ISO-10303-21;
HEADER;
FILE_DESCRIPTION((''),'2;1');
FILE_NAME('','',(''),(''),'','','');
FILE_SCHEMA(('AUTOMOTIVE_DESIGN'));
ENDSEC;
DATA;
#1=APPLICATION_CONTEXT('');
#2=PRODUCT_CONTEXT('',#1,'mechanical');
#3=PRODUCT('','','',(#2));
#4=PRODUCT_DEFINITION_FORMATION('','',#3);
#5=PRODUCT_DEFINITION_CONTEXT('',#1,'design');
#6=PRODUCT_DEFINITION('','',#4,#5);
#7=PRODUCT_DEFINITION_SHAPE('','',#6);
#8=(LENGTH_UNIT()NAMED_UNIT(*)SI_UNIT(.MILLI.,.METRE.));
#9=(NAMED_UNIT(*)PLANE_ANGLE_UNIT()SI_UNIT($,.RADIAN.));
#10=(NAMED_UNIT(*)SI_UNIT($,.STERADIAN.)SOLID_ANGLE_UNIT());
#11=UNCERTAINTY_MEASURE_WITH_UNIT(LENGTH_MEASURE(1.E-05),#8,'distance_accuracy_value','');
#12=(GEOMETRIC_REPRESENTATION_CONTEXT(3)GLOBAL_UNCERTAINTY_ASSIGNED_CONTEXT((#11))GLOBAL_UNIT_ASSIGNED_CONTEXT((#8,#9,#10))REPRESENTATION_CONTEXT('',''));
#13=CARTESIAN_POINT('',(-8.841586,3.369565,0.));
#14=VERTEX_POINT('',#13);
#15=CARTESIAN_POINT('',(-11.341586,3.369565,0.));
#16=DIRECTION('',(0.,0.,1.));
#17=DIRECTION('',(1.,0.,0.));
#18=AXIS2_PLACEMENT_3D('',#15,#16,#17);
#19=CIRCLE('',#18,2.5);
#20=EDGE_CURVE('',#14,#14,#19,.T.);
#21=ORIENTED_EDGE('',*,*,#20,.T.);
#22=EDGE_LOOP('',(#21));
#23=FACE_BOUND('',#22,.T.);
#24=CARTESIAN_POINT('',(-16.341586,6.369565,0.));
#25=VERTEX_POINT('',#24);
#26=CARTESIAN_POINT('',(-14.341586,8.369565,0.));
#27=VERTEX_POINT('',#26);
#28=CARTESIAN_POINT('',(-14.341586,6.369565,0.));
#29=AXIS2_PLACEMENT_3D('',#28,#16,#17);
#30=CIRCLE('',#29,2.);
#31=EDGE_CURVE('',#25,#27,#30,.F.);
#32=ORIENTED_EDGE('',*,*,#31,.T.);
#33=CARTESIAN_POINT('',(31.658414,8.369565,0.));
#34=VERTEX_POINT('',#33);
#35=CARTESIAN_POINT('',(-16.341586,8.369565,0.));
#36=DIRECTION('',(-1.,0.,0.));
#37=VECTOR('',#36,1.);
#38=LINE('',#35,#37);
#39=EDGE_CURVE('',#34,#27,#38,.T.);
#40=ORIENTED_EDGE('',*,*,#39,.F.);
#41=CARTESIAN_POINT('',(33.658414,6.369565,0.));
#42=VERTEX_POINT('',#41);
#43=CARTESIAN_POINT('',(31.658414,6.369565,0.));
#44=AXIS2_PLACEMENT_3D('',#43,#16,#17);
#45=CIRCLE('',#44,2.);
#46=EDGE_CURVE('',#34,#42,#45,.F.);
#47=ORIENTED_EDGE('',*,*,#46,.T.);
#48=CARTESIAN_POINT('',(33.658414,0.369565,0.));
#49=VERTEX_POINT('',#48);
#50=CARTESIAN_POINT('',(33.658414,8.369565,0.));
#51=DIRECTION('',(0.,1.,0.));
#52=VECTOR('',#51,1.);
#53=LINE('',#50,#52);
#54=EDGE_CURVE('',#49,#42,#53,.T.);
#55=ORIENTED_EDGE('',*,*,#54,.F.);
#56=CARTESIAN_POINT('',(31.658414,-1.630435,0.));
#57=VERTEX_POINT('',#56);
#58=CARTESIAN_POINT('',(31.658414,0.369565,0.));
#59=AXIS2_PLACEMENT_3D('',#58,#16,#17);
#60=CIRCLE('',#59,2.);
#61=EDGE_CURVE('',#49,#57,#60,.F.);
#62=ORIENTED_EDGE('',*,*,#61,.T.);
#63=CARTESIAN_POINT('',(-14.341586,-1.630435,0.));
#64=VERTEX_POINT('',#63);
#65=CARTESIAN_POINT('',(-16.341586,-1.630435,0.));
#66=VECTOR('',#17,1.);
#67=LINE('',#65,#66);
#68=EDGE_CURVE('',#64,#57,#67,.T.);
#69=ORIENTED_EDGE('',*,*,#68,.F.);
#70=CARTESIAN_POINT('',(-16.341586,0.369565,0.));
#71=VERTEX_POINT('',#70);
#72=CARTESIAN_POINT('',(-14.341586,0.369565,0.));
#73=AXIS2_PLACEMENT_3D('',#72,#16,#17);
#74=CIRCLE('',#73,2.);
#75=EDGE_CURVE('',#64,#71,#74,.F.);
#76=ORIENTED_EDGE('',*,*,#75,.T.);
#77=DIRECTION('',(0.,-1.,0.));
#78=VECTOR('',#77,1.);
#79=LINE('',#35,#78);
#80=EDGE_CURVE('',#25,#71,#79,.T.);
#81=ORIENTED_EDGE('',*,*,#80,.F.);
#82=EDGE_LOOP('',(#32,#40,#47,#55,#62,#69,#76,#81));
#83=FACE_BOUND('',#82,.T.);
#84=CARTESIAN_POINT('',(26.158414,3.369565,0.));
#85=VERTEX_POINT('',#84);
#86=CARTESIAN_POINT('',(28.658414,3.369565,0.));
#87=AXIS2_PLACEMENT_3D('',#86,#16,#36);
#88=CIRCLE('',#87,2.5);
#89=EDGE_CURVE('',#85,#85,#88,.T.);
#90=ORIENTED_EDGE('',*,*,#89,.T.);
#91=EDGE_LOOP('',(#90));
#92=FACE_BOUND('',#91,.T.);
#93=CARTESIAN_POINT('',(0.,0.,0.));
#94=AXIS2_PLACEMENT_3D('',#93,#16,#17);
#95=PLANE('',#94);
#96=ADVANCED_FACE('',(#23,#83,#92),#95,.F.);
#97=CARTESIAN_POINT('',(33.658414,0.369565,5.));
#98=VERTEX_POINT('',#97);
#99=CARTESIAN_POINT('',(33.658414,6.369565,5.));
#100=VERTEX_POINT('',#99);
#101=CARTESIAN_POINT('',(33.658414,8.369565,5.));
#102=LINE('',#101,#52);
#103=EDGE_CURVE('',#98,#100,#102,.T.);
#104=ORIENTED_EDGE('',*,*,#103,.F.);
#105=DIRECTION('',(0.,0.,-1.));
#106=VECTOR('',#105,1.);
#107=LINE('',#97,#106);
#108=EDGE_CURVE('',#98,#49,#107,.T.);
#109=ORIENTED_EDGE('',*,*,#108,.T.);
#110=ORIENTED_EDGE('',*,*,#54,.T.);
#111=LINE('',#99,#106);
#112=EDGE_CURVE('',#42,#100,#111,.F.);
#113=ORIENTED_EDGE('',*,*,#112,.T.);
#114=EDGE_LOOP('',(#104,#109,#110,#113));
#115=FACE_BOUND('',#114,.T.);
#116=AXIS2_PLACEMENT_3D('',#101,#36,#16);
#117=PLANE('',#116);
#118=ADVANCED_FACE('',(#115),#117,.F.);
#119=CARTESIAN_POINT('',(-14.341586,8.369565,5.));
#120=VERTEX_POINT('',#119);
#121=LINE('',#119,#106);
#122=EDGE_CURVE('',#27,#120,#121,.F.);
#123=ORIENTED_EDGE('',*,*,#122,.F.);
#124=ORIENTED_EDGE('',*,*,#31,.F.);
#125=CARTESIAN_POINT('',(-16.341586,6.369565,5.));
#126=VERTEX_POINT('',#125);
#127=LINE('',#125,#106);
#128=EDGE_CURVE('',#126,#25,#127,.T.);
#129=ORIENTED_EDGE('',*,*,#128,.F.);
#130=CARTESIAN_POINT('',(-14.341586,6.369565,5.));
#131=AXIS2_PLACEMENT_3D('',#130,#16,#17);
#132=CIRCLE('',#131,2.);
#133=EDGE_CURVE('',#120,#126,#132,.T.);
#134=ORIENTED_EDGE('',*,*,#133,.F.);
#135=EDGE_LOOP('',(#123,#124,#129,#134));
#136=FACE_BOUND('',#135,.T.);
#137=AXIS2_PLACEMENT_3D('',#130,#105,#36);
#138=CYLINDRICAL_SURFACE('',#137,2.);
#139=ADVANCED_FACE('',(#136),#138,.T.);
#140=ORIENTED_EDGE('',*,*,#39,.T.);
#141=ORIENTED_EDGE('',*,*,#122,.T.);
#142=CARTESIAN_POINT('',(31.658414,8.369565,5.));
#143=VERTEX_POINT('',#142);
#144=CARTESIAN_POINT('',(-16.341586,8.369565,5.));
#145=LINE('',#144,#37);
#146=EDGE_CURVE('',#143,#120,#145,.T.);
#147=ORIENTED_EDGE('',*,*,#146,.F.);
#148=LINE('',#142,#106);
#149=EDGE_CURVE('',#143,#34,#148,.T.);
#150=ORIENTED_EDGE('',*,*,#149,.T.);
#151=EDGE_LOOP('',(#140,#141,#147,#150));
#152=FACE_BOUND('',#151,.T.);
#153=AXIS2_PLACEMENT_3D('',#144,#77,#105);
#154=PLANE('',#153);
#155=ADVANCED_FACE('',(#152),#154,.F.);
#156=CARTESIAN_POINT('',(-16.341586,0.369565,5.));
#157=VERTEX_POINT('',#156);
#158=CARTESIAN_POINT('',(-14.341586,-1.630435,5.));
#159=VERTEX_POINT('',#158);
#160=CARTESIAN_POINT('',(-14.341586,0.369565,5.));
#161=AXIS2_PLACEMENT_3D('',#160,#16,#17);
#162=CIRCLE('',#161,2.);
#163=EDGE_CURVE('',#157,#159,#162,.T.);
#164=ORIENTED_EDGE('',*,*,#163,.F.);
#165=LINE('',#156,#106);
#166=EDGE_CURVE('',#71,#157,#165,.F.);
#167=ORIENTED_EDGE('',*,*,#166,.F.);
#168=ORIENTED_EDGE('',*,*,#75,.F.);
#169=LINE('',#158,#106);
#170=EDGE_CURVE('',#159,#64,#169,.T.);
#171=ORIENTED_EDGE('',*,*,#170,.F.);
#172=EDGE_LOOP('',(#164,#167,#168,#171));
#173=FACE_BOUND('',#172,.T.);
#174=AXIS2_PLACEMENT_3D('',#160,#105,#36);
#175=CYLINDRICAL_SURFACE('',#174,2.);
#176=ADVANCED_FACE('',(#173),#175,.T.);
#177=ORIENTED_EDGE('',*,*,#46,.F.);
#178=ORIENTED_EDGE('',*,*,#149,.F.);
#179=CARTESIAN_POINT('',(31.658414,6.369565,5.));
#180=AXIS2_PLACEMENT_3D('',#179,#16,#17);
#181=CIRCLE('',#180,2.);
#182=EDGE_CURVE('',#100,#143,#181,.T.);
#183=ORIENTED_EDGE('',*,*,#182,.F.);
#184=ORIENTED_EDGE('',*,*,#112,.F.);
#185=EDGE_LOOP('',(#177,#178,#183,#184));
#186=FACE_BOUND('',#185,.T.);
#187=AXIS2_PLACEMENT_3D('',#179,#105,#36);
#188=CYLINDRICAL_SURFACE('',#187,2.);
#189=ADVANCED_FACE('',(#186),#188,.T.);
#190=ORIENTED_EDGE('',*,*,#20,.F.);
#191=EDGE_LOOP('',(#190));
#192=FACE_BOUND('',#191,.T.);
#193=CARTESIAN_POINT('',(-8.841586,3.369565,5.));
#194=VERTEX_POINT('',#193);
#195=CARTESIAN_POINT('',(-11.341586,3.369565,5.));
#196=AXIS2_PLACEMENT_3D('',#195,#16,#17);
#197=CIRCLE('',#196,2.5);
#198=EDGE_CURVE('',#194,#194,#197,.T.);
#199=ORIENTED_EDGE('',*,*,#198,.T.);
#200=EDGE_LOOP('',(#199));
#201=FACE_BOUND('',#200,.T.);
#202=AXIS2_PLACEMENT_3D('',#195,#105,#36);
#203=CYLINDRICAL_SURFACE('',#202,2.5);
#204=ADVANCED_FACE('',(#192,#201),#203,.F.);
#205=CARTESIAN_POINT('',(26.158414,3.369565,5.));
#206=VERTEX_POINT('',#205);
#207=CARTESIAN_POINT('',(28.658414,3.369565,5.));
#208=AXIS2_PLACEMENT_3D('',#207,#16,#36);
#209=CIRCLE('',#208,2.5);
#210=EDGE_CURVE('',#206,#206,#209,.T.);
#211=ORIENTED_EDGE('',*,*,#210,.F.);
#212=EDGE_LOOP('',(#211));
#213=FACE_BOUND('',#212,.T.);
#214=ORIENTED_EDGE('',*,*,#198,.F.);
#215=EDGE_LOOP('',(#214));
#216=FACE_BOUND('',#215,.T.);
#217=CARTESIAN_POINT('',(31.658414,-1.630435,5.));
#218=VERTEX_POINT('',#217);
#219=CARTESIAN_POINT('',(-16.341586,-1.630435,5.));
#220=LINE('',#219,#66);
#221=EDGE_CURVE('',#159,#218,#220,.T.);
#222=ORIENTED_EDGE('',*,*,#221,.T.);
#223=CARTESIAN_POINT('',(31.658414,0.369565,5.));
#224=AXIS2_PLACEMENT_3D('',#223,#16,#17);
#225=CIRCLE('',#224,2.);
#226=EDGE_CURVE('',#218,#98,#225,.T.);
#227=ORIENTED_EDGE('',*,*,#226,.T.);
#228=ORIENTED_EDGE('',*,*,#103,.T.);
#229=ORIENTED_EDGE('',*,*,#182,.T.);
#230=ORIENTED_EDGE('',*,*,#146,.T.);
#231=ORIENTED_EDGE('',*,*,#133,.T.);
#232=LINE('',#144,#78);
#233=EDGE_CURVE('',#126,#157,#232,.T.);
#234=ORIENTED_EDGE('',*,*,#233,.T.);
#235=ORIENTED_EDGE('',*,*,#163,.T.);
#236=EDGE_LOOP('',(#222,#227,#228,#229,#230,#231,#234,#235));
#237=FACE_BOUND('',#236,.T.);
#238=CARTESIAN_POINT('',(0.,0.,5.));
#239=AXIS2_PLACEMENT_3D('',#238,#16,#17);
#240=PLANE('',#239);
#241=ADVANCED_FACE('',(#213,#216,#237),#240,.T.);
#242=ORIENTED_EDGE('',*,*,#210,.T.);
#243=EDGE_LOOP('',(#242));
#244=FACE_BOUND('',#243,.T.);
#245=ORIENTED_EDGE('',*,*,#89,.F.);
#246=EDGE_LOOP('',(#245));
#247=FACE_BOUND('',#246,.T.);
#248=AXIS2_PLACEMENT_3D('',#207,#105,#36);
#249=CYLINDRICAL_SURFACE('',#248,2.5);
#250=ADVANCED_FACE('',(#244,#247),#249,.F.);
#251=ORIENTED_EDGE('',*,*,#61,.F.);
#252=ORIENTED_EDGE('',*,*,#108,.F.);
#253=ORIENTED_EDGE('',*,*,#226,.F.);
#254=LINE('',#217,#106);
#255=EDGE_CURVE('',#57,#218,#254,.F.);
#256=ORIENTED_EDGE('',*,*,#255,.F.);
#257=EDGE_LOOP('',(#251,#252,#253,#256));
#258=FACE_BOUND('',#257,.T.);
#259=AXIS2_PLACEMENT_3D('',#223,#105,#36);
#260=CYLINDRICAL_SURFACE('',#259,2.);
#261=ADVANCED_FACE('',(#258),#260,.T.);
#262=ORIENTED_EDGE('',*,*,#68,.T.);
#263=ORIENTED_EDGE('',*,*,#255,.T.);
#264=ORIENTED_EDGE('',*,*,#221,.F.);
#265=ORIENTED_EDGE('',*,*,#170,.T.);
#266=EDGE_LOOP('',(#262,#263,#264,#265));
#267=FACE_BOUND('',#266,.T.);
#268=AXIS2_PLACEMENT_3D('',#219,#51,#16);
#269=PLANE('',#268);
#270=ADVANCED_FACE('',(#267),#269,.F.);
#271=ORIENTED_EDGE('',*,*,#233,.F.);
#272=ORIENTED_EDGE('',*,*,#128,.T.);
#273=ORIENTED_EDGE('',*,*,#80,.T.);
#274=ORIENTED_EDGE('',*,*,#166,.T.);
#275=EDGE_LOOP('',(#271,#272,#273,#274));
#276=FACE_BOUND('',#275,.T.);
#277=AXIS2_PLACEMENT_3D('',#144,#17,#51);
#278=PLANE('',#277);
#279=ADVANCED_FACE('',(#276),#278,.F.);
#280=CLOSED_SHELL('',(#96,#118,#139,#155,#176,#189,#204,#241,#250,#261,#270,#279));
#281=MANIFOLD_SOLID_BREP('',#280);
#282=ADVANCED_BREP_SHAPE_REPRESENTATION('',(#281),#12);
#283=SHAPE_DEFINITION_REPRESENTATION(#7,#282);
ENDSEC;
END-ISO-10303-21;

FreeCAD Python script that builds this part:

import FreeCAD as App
import Part
import Sketcher
from FreeCAD import Vector


def edges_at(feature, points):
    """Names of the edges that pass closest to the given points."""
    edges = feature.Shape.Edges
    near = lambda p: min(range(len(edges)), key=lambda i: edges[i].distToShape(Part.Vertex(*p))[0])
    return sorted({f"Edge{near(p) + 1}" for p in points})

doc = App.newDocument("Part")
body = doc.addObject("PartDesign::Body", "Body")

# Sketch on XY plane
sketch1 = body.newObject("Sketcher::SketchObject", "Sketch")
sketch1.AttachmentSupport = (doc.getObject("XY_Plane"), [""])
sketch1.MapMode = "FlatFace"
sketch1.addGeometry(Part.LineSegment(Vector(-16.341586, 8.369565, 0), Vector(-16.341586, -1.630435, 0)), False)
sketch1.addGeometry(Part.LineSegment(Vector(-16.341586, -1.630435, 0), Vector(33.658414, -1.630435, 0)), False)
sketch1.addGeometry(Part.LineSegment(Vector(33.658414, -1.630435, 0), Vector(33.658414, 8.369565, 0)), False)
sketch1.addGeometry(Part.LineSegment(Vector(33.658414, 8.369565, 0), Vector(-16.341586, 8.369565, 0)), False)
sketch1.addGeometry(Part.Circle(Vector(-11.341586, 3.369565, 0), Vector(0, 0, 1), 2.5), False)
sketch1.addGeometry(Part.Circle(Vector(28.658414, 3.369565, 0), Vector(0, 0, 1), 2.5), False)
sketch1.addConstraint(Sketcher.Constraint("Coincident", 0, 2, 1, 1))
sketch1.addConstraint(Sketcher.Constraint("Coincident", 1, 2, 2, 1))
sketch1.addConstraint(Sketcher.Constraint("Coincident", 2, 2, 3, 1))
sketch1.addConstraint(Sketcher.Constraint("Coincident", 3, 2, 0, 1))
sketch1.addConstraint(Sketcher.Constraint("Vertical", 0))
sketch1.addConstraint(Sketcher.Constraint("Horizontal", 1))
sketch1.addConstraint(Sketcher.Constraint("Vertical", 2))
sketch1.addConstraint(Sketcher.Constraint("Horizontal", 3))
sketch1.addConstraint(Sketcher.Constraint("Equal", 4, 5))
sketch1.addConstraint(Sketcher.Constraint("Horizontal", 4, 3, 5, 3))
sketch1.addConstraint(Sketcher.Constraint("Diameter", 4, 5.0))
sketch1.addConstraint(Sketcher.Constraint("DistanceX", 1, 1, 1, 2, 50.0))
sketch1.addConstraint(Sketcher.Constraint("DistanceY", 0, 2, 0, 1, 10.0))
sketch1.addConstraint(Sketcher.Constraint("DistanceX", 4, 3, 5, 3, 40.0))
sketch1.addConstraint(Sketcher.Constraint("DistanceX", 0, 2, 4, 3, 5.0))
sketch1.addConstraint(Sketcher.Constraint("DistanceY", 0, 2, 4, 3, 5.0))
sketch1.addConstraint(Sketcher.Constraint("DistanceX", 4, 3, -1, 1, 11.341586))
sketch1.addConstraint(Sketcher.Constraint("DistanceY", -1, 1, 4, 3, 3.369565))
pad1 = body.newObject("PartDesign::Pad", "Pad")
pad1.Profile = sketch1
pad1.Length = 5
doc.recompute()

fillet = body.newObject("PartDesign::Fillet", "Fillet")
fillet.Base = (pad1, edges_at(pad1, [(-16.342, 8.37, 2.5)]))
fillet.Radius = 2
doc.recompute()

fillet2 = body.newObject("PartDesign::Fillet", "Fillet001")
fillet2.Base = (fillet, edges_at(fillet, [(-16.342, -1.63, 2.5)]))
fillet2.Radius = 2
doc.recompute()

fillet3 = body.newObject("PartDesign::Fillet", "Fillet002")
fillet3.Base = (fillet2, edges_at(fillet2, [(33.658, 8.37, 2.5)]))
fillet3.Radius = 2
doc.recompute()

fillet4 = body.newObject("PartDesign::Fillet", "Fillet003")
fillet4.Base = (fillet3, edges_at(fillet3, [(33.658, -1.63, 2.5)]))
fillet4.Radius = 2

doc.recompute()
